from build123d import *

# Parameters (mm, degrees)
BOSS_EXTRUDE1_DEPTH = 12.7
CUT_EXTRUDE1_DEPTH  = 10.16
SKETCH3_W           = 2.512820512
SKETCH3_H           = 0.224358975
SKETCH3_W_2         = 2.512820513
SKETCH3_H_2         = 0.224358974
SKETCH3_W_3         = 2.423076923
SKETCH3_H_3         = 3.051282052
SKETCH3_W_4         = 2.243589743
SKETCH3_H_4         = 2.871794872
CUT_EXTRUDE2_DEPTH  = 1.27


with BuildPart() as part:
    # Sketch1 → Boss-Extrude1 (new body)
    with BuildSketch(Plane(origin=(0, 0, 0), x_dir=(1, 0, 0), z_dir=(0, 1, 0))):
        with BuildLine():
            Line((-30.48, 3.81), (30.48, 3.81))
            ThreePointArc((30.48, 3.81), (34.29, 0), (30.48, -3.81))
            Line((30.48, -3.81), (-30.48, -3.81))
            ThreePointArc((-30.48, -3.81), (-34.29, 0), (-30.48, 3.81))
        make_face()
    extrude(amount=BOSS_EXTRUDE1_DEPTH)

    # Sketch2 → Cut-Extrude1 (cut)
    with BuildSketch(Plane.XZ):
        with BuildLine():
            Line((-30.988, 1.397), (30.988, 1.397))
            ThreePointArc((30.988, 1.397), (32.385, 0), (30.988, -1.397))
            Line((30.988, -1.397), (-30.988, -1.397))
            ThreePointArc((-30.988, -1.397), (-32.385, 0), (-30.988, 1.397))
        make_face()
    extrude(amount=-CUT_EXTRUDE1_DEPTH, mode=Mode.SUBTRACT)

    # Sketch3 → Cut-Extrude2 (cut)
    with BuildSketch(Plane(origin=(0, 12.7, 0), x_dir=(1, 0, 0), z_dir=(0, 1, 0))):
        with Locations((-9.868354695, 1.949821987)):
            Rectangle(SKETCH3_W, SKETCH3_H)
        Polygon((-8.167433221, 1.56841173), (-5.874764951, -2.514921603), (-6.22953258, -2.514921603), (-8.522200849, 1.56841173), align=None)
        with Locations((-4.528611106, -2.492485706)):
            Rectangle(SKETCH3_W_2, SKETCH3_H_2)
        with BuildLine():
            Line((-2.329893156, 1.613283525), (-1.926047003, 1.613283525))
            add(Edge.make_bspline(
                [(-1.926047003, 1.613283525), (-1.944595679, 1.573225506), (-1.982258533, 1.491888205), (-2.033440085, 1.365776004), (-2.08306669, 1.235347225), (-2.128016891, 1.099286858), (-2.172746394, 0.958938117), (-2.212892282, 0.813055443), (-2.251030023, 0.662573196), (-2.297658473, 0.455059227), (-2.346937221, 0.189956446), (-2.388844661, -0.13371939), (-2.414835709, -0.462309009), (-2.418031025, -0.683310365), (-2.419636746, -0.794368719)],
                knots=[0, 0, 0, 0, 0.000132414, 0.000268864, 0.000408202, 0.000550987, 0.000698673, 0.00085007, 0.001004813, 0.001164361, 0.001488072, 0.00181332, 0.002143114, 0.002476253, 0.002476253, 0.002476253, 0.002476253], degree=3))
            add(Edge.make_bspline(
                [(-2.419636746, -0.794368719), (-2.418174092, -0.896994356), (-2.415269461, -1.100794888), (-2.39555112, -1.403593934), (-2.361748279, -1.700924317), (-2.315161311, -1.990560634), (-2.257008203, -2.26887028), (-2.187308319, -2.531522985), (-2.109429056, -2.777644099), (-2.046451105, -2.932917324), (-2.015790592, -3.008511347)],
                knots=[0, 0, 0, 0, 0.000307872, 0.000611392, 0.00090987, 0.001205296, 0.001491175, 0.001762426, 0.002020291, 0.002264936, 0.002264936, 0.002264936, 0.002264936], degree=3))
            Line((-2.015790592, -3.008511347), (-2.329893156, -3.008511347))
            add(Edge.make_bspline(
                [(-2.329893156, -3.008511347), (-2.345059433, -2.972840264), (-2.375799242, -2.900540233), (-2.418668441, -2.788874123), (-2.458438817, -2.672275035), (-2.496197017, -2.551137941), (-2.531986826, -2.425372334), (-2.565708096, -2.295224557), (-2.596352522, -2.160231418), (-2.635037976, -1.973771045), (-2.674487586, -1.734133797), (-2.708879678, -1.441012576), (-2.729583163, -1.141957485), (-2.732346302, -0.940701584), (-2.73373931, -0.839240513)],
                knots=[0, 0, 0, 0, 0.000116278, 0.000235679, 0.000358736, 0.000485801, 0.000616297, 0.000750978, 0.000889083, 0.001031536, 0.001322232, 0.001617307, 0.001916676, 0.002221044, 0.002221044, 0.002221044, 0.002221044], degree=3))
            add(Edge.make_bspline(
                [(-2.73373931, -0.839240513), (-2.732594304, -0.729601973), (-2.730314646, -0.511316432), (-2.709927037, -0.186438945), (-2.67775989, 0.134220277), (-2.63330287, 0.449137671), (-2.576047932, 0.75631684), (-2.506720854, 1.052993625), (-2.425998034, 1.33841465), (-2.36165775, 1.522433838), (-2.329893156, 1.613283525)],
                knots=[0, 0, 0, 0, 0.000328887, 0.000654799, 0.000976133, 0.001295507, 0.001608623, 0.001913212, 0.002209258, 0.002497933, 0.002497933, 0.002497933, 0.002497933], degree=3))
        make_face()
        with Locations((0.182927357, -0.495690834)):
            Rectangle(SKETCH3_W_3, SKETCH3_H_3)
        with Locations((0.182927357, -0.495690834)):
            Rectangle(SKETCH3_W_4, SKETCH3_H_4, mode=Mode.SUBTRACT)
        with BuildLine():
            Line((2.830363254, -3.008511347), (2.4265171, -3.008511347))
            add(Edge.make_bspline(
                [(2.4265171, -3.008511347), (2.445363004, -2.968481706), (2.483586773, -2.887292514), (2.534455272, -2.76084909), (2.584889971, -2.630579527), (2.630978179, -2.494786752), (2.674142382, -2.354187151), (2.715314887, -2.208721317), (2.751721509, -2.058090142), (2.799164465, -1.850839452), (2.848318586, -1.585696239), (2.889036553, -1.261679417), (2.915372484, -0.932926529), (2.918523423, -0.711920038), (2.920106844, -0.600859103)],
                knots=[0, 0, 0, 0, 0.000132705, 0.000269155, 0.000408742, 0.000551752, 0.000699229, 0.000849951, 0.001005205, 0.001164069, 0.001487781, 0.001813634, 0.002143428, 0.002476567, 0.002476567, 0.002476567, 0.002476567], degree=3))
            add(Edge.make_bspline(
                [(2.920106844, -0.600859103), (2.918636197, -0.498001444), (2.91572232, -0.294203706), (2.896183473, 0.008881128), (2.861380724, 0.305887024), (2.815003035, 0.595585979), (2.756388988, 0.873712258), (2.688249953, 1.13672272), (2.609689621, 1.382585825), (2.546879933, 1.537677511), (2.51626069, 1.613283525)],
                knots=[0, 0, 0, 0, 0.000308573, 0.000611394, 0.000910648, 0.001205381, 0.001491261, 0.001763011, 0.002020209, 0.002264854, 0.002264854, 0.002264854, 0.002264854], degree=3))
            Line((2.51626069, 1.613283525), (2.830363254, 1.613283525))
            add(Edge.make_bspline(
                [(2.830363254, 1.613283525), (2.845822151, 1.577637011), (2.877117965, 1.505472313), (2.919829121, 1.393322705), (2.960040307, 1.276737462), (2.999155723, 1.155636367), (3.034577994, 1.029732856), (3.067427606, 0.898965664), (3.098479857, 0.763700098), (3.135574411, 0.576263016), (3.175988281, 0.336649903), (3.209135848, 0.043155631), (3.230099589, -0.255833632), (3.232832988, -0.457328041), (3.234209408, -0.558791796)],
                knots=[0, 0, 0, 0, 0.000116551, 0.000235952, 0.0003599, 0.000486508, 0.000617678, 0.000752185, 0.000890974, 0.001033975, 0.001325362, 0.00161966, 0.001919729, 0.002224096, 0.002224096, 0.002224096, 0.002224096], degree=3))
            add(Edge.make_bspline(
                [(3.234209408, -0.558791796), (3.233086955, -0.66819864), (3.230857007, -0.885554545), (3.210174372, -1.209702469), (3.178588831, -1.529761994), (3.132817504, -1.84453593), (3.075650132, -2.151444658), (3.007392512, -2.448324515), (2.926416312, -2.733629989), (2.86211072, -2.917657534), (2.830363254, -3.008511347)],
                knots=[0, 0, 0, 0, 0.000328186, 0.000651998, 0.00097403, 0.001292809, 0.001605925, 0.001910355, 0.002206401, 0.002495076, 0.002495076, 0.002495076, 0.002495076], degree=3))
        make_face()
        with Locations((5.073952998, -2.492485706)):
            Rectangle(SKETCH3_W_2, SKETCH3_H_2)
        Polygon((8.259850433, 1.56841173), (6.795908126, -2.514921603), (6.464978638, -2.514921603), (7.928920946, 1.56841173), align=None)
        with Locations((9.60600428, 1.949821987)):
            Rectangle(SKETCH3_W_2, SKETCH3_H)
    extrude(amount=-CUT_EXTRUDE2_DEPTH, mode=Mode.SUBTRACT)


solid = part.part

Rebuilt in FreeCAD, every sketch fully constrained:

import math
import FreeCAD as App
import Part
import Sketcher
Q = App.Units.Quantity


def add_polygon(sketch, points):
    """Adds a closed chain of lines whose ends are joined by coincident constraints."""
    first, n = sketch.GeometryCount, len(points)
    for a, b in zip(points, points[1:] + points[:1]):
        sketch.addGeometry(Part.LineSegment(App.Vector(*a, 0), App.Vector(*b, 0)), False)
    for i in range(n):
        sketch.addConstraint(Sketcher.Constraint("Coincident", first + i, 2, first + (i + 1) % n, 1))

doc = App.newDocument("Part")
body = doc.addObject("PartDesign::Body", "Body")

# Sketch on XZ plane
sketch1 = body.newObject("Sketcher::SketchObject", "Sketch")
sketch1.AttachmentSupport = (doc.getObject("XZ_Plane"), [""])
sketch1.MapMode = "FlatFace"
sketch1.addGeometry([
    Part.LineSegment(App.Vector(30.48, -3.81, 0), App.Vector(-30.48, -3.81, 0)),
    Part.ArcOfCircle(Part.Circle(App.Vector(-30.48, 0, 0), App.Vector(0, 0, 1), 3.81), math.radians(90), math.radians(270)),
    Part.LineSegment(App.Vector(-30.48, 3.81, 0), App.Vector(30.48, 3.81, 0)),
    Part.ArcOfCircle(Part.Circle(App.Vector(30.48, 0, 0), App.Vector(0, 0, 1), 3.81), math.radians(-90), math.radians(90)),
], False)
sketch1.addConstraint([
    Sketcher.Constraint("Tangent", 0, 2, 1, 2),
    Sketcher.Constraint("Tangent", 1, 1, 2, 1),
    Sketcher.Constraint("Tangent", 2, 2, 3, 2),
    Sketcher.Constraint("Tangent", 3, 1, 0, 1),
    Sketcher.Constraint("Horizontal", 0),
    Sketcher.Constraint("Horizontal", 2),
    Sketcher.Constraint("Symmetric", 1, 3, 3, 3, -1, 1),
    Sketcher.Constraint("Radius", 1, Q("0.15 in")),
    Sketcher.Constraint("DistanceX", 0, 2, 0, 1, Q("2.4 in")),
])
pad1 = body.newObject("PartDesign::Pad", "Pad")
pad1.Profile = sketch1
pad1.Length = Q("0.5 in")
pad1.Reversed = True

# Sketch on XZ plane
sketch2 = body.newObject("Sketcher::SketchObject", "Sketch001")
sketch2.AttachmentSupport = (doc.getObject("XZ_Plane"), [""])
sketch2.MapMode = "FlatFace"
sketch2.addGeometry([
    Part.LineSegment(App.Vector(30.988, 1.397, 0), App.Vector(-30.988, 1.397, 0)),
    Part.ArcOfCircle(Part.Circle(App.Vector(-30.988, 0, 0), App.Vector(0, 0, 1), 1.397), math.radians(90), math.radians(270)),
    Part.LineSegment(App.Vector(-30.988, -1.397, 0), App.Vector(30.988, -1.397, 0)),
    Part.ArcOfCircle(Part.Circle(App.Vector(30.988, 0, 0), App.Vector(0, 0, 1), 1.397), math.radians(-90), math.radians(90)),
], False)
sketch2.addConstraint([
    Sketcher.Constraint("Tangent", 0, 2, 1, 1),
    Sketcher.Constraint("Tangent", 1, 2, 2, 1),
    Sketcher.Constraint("Tangent", 2, 2, 3, 1),
    Sketcher.Constraint("Tangent", 3, 2, 0, 1),
    Sketcher.Constraint("Horizontal", 0),
    Sketcher.Constraint("Horizontal", 2),
    Sketcher.Constraint("Symmetric", 1, 3, 3, 3, -1, 1),
    Sketcher.Constraint("Radius", 1, Q("0.055 in")),
    Sketcher.Constraint("DistanceX", 0, 2, 0, 1, Q("2.44 in")),
])
pocket1 = body.newObject("PartDesign::Pocket", "Pocket")
pocket1.Profile = sketch2
pocket1.Length = Q("0.4 in")

# Sketch on XZ plane
sketch3 = body.newObject("Sketcher::SketchObject", "Sketch002")
sketch3.AttachmentSupport = (doc.getObject("XZ_Plane"), [""])
sketch3.MapMode = "FlatFace"
sketch3.AttachmentOffset = App.Placement(App.Vector(0, 0, -0.5 * 25.4), App.Rotation())
add_polygon(sketch3, [(-11.124765, -2.062001), (-11.124765, -1.837643), (-8.611944, -1.837643), (-8.611944, -2.062001)])  # lines 0-3
add_polygon(sketch3, [(-5.874765, 2.514922), (-8.167433, -1.568412), (-8.522201, -1.568412), (-6.229533, 2.514922)])  # lines 4-7
add_polygon(sketch3, [(-5.785021, 2.380306), (-5.785021, 2.604665), (-3.272201, 2.604665), (-3.272201, 2.380306)])  # lines 8-11
sketch3.addGeometry(Part.LineSegment(App.Vector(-1.926047, -1.613284, 0), App.Vector(-2.329893, -1.613284, 0)), False)  # 12
sketch3.addGeometry(Part.BSplineCurve([App.Vector(-2.733739, 0.839241, 0), App.Vector(-2.732594, 0.729602, 0), App.Vector(-2.730315, 0.511316, 0), App.Vector(-2.709927, 0.186439, 0), App.Vector(-2.67776, -0.13422, 0), App.Vector(-2.633303, -0.449138, 0), App.Vector(-2.576048, -0.756317, 0), App.Vector(-2.506721, -1.052994, 0), App.Vector(-2.425998, -1.338415, 0), App.Vector(-2.361658, -1.522434, 0), App.Vector(-2.329893, -1.613284, 0)], [4, 1, 1, 1, 1, 1, 1, 1, 4], [0, 0.000328887, 0.000654799, 0.000976133, 0.001295507, 0.001608623, 0.001913212, 0.002209258, 0.002497933], False, 3, [1, 1, 1, 1, 1, 1, 1, 1, 1, 1, 1], False), False)  # 13
sketch3.addGeometry(Part.BSplineCurve([App.Vector(-2.329893, 3.008511, 0), App.Vector(-2.345059, 2.97284, 0), App.Vector(-2.375799, 2.90054, 0), App.Vector(-2.418668, 2.788874, 0), App.Vector(-2.458439, 2.672275, 0), App.Vector(-2.496197, 2.551138, 0), App.Vector(-2.531987, 2.425372, 0), App.Vector(-2.565708, 2.295225, 0), App.Vector(-2.596353, 2.160231, 0), App.Vector(-2.635038, 1.973771, 0), App.Vector(-2.674488, 1.734134, 0), App.Vector(-2.70888, 1.441013, 0), App.Vector(-2.729583, 1.141957, 0), App.Vector(-2.732346, 0.940702, 0), App.Vector(-2.733739, 0.839241, 0)], [4, 1, 1, 1, 1, 1, 1, 1, 1, 1, 1, 1, 4], [0, 0.000116278, 0.000235679, 0.000358736, 0.000485801, 0.000616297, 0.000750978, 0.000889083, 0.001031536, 0.001322232, 0.001617307, 0.001916676, 0.002221044], False, 3, [1, 1, 1, 1, 1, 1, 1, 1, 1, 1, 1, 1, 1, 1, 1], False), False)  # 14
sketch3.addGeometry(Part.LineSegment(App.Vector(-2.329893, 3.008511, 0), App.Vector(-2.015791, 3.008511, 0)), False)  # 15
sketch3.addGeometry(Part.BSplineCurve([App.Vector(-2.419637, 0.794369, 0), App.Vector(-2.418174, 0.896994, 0), App.Vector(-2.415269, 1.100795, 0), App.Vector(-2.395551, 1.403594, 0), App.Vector(-2.361748, 1.700924, 0), App.Vector(-2.315161, 1.990561, 0), App.Vector(-2.257008, 2.26887, 0), App.Vector(-2.187308, 2.531523, 0), App.Vector(-2.109429, 2.777644, 0), App.Vector(-2.046451, 2.932917, 0), App.Vector(-2.015791, 3.008511, 0)], [4, 1, 1, 1, 1, 1, 1, 1, 4], [0, 0.000307872, 0.000611392, 0.00090987, 0.001205296, 0.001491175, 0.001762426, 0.002020291, 0.002264936], False, 3, [1, 1, 1, 1, 1, 1, 1, 1, 1, 1, 1], False), False)  # 16
sketch3.addGeometry(Part.BSplineCurve([App.Vector(-1.926047, -1.613284, 0), App.Vector(-1.944596, -1.573226, 0), App.Vector(-1.982259, -1.491888, 0), App.Vector(-2.03344, -1.365776, 0), App.Vector(-2.083067, -1.235347, 0), App.Vector(-2.128017, -1.099287, 0), App.Vector(-2.172746, -0.958938, 0), App.Vector(-2.212892, -0.813055, 0), App.Vector(-2.25103, -0.662573, 0), App.Vector(-2.297658, -0.455059, 0), App.Vector(-2.346937, -0.189956, 0), App.Vector(-2.388845, 0.133719, 0), App.Vector(-2.414836, 0.462309, 0), App.Vector(-2.418031, 0.68331, 0), App.Vector(-2.419637, 0.794369, 0)], [4, 1, 1, 1, 1, 1, 1, 1, 1, 1, 1, 1, 4], [0, 0.000132414, 0.000268864, 0.000408202, 0.000550987, 0.000698673, 0.00085007, 0.001004813, 0.001164361, 0.001488072, 0.00181332, 0.002143114, 0.002476253], False, 3, [1, 1, 1, 1, 1, 1, 1, 1, 1, 1, 1, 1, 1, 1, 1], False), False)  # 17
add_polygon(sketch3, [(-1.028611, -1.02995), (-1.028611, 2.021332), (1.394466, 2.021332), (1.394466, -1.02995)])  # lines 18-21
add_polygon(sketch3, [(1.304722, 1.931588), (-0.938868, 1.931588), (-0.938868, -0.940207), (1.304722, -0.940207)])  # lines 22-25
sketch3.addGeometry(Part.LineSegment(App.Vector(2.426517, 3.008511, 0), App.Vector(2.830363, 3.008511, 0)), False)  # 26
sketch3.addGeometry(Part.BSplineCurve([App.Vector(3.234209, 0.558792, 0), App.Vector(3.233087, 0.668199, 0), App.Vector(3.230857, 0.885555, 0), App.Vector(3.210174, 1.209702, 0), App.Vector(3.178589, 1.529762, 0), App.Vector(3.132818, 1.844536, 0), App.Vector(3.07565, 2.151445, 0), App.Vector(3.007393, 2.448325, 0), App.Vector(2.926416, 2.73363, 0), App.Vector(2.862111, 2.917658, 0), App.Vector(2.830363, 3.008511, 0)], [4, 1, 1, 1, 1, 1, 1, 1, 4], [0, 0.000328186, 0.000651998, 0.00097403, 0.001292809, 0.001605925, 0.001910355, 0.002206401, 0.002495076], False, 3, [1, 1, 1, 1, 1, 1, 1, 1, 1, 1, 1], False), False)  # 27
sketch3.addGeometry(Part.BSplineCurve([App.Vector(2.830363, -1.613284, 0), App.Vector(2.845822, -1.577637, 0), App.Vector(2.877118, -1.505472, 0), App.Vector(2.919829, -1.393323, 0), App.Vector(2.96004, -1.276737, 0), App.Vector(2.999156, -1.155636, 0), App.Vector(3.034578, -1.029733, 0), App.Vector(3.067428, -0.898966, 0), App.Vector(3.09848, -0.7637, 0), App.Vector(3.135574, -0.576263, 0), App.Vector(3.175988, -0.33665, 0), App.Vector(3.209136, -0.043156, 0), App.Vector(3.2301, 0.255834, 0), App.Vector(3.232833, 0.457328, 0), App.Vector(3.234209, 0.558792, 0)], [4, 1, 1, 1, 1, 1, 1, 1, 1, 1, 1, 1, 4], [0, 0.000116551, 0.000235952, 0.0003599, 0.000486508, 0.000617678, 0.000752185, 0.000890974, 0.001033975, 0.001325362, 0.00161966, 0.001919729, 0.002224096], False, 3, [1, 1, 1, 1, 1, 1, 1, 1, 1, 1, 1, 1, 1, 1, 1], False), False)  # 28
sketch3.addGeometry(Part.LineSegment(App.Vector(2.830363, -1.613284, 0), App.Vector(2.516261, -1.613284, 0)), False)  # 29
sketch3.addGeometry(Part.BSplineCurve([App.Vector(2.920107, 0.600859, 0), App.Vector(2.918636, 0.498001, 0), App.Vector(2.915722, 0.294204, 0), App.Vector(2.896183, -0.008881, 0), App.Vector(2.861381, -0.305887, 0), App.Vector(2.815003, -0.595586, 0), App.Vector(2.756389, -0.873712, 0), App.Vector(2.68825, -1.136723, 0), App.Vector(2.60969, -1.382586, 0), App.Vector(2.54688, -1.537678, 0), App.Vector(2.516261, -1.613284, 0)], [4, 1, 1, 1, 1, 1, 1, 1, 4], [0, 0.000308573, 0.000611394, 0.000910648, 0.001205381, 0.001491261, 0.001763011, 0.002020209, 0.002264854], False, 3, [1, 1, 1, 1, 1, 1, 1, 1, 1, 1, 1], False), False)  # 30
sketch3.addGeometry(Part.BSplineCurve([App.Vector(2.426517, 3.008511, 0), App.Vector(2.445363, 2.968482, 0), App.Vector(2.483587, 2.887293, 0), App.Vector(2.534455, 2.760849, 0), App.Vector(2.58489, 2.63058, 0), App.Vector(2.630978, 2.494787, 0), App.Vector(2.674142, 2.354187, 0), App.Vector(2.715315, 2.208721, 0), App.Vector(2.751722, 2.05809, 0), App.Vector(2.799164, 1.850839, 0), App.Vector(2.848319, 1.585696, 0), App.Vector(2.889037, 1.261679, 0), App.Vector(2.915372, 0.932927, 0), App.Vector(2.918523, 0.71192, 0), App.Vector(2.920107, 0.600859, 0)], [4, 1, 1, 1, 1, 1, 1, 1, 1, 1, 1, 1, 4], [0, 0.000132705, 0.000269155, 0.000408742, 0.000551752, 0.000699229, 0.000849951, 0.001005205, 0.001164069, 0.001487781, 0.001813634, 0.002143428, 0.002476567], False, 3, [1, 1, 1, 1, 1, 1, 1, 1, 1, 1, 1, 1, 1, 1, 1], False), False)  # 31
add_polygon(sketch3, [(3.817543, 2.380306), (3.817543, 2.604665), (6.330363, 2.604665), (6.330363, 2.380306)])  # lines 32-35
add_polygon(sketch3, [(6.795908, 2.514922), (8.25985, -1.568412), (7.928921, -1.568412), (6.464979, 2.514922)])  # lines 36-39
add_polygon(sketch3, [(8.349594, -2.062001), (8.349594, -1.837643), (10.862415, -1.837643), (10.862415, -2.062001)])  # lines 40-43
sketch3.addConstraint([
    Sketcher.Constraint("Block", 13),
    Sketcher.Constraint("Block", 14),
    Sketcher.Constraint("Block", 16),
    Sketcher.Constraint("Block", 17),
    Sketcher.Constraint("Block", 27),
    Sketcher.Constraint("Block", 28),
    Sketcher.Constraint("Block", 30),
    Sketcher.Constraint("Block", 31),
    Sketcher.Constraint("Coincident", 12, 2, 13, 2),
    Sketcher.Constraint("Coincident", 14, 1, 15, 1),
    Sketcher.Constraint("Coincident", 15, 2, 16, 2),
    Sketcher.Constraint("Coincident", 17, 1, 12, 1),
    Sketcher.Constraint("Coincident", 26, 2, 27, 2),
    Sketcher.Constraint("Coincident", 28, 1, 29, 1),
    Sketcher.Constraint("Coincident", 29, 2, 30, 2),
    Sketcher.Constraint("Coincident", 31, 1, 26, 1),
    Sketcher.Constraint("Vertical", 0),
    Sketcher.Constraint("Horizontal", 1),
    Sketcher.Constraint("Vertical", 2),
    Sketcher.Constraint("Horizontal", 3),
    Sketcher.Constraint("Horizontal", 5),
    Sketcher.Constraint("Horizontal", 7),
    Sketcher.Constraint("Vertical", 8),
    Sketcher.Constraint("Horizontal", 9),
    Sketcher.Constraint("Vertical", 10),
    Sketcher.Constraint("Horizontal", 11),
    Sketcher.Constraint("Vertical", 18),
    Sketcher.Constraint("Horizontal", 19),
    Sketcher.Constraint("Vertical", 20),
    Sketcher.Constraint("Horizontal", 21),
    Sketcher.Constraint("Horizontal", 22),
    Sketcher.Constraint("Vertical", 23),
    Sketcher.Constraint("Horizontal", 24),
    Sketcher.Constraint("Vertical", 25),
    Sketcher.Constraint("Vertical", 32),
    Sketcher.Constraint("Horizontal", 33),
    Sketcher.Constraint("Vertical", 34),
    Sketcher.Constraint("Horizontal", 35),
    Sketcher.Constraint("Horizontal", 37),
    Sketcher.Constraint("Horizontal", 39),
    Sketcher.Constraint("Vertical", 40),
    Sketcher.Constraint("Horizontal", 41),
    Sketcher.Constraint("Vertical", 42),
    Sketcher.Constraint("Horizontal", 43),
    Sketcher.Constraint("Parallel", 4, 6),
    Sketcher.Constraint("Parallel", 36, 38),
    Sketcher.Constraint("Horizontal", 9, 2, 32, 2),
    Sketcher.Constraint("Horizontal", 11, 2, 34, 2),
    Sketcher.Constraint("Horizontal", 5, 2, 36, 2),
    Sketcher.Constraint("Horizontal", 7, 2, 38, 2),
    Sketcher.Constraint("Horizontal", 1, 2, 40, 2),
    Sketcher.Constraint("Horizontal", 3, 2, 42, 2),
    Sketcher.Constraint("Equal", 3, 9),
    Sketcher.Constraint("Equal", 11, 33),
    Sketcher.Constraint("Equal", 35, 41),
    Sketcher.Constraint("Equal", 2, 8),
    Sketcher.Constraint("DistanceY", 10, 2, 7, 2, Q("0.0052998 in")),
    Sketcher.Constraint("DistanceX", 33, 2, 38, 2, Q("0.0052998 in")),
    Sketcher.Constraint("DistanceX", 1, 1, 1, 2, Q("2.512821 mm")),
    Sketcher.Constraint("DistanceX", 22, 2, 22, 1, Q("2.24359 mm")),
    Sketcher.Constraint("DistanceX", 37, 2, 37, 1, Q("0.330929 mm")),
    Sketcher.Constraint("DistanceY", 0, 1, 0, 2, Q("0.224359 mm")),
    Sketcher.Constraint("DistanceY", 2, 2, -1, 1, Q("2.062001 mm")),
    Sketcher.Constraint("DistanceX", 5, 2, -1, 1, Q("8.522201 mm")),
    Sketcher.Constraint("DistanceX", 9, 2, -1, 1, Q("3.272201 mm")),
    Sketcher.Constraint("DistanceX", 4, 2, 6, 2, Q("1.937901 mm")),
    Sketcher.Constraint("DistanceX", 26, 2, 33, 2, Q("3.5 mm")),
    Sketcher.Constraint("Distance", 4, Q("4.682941 mm")),
    Sketcher.Constraint("DistanceX", 5, 2, 5, 1, Q("0.354768 mm")),
    Sketcher.Constraint("DistanceX", 19, 1, 19, 2, Q("2.423077 mm")),
    Sketcher.Constraint("DistanceY", 18, 1, 18, 2, Q("3.051282 mm")),
    Sketcher.Constraint("DistanceY", 23, 2, 23, 1, Q("2.871795 mm")),
    Sketcher.Constraint("DistanceY", 4, 2, -1, 1, Q("1.568412 mm")),
    Sketcher.Constraint("DistanceX", 18, 2, -1, 1, Q("1.028611 mm")),
    Sketcher.Constraint("DistanceY", -1, 1, 18, 2, Q("2.021332 mm")),
    Sketcher.Constraint("DistanceY", -1, 1, 22, 2, Q("1.931588 mm")),
    Sketcher.Constraint("DistanceX", -1, 1, 36, 2, Q("8.25985 mm")),
    Sketcher.Constraint("DistanceX", 1, 2, 4, 2, Q("0.444511 mm")),
    Sketcher.Constraint("DistanceX", 25, 2, 26, 2, Q("1.525641 mm")),
    Sketcher.Constraint("DistanceX", 34, 2, 40, 2, Q("2.019231 mm")),
])
pocket2 = body.newObject("PartDesign::Pocket", "Pocket001")
pocket2.Profile = sketch3
pocket2.Length = Q("0.05 in")
pocket2.Reversed = True

doc.recompute()
